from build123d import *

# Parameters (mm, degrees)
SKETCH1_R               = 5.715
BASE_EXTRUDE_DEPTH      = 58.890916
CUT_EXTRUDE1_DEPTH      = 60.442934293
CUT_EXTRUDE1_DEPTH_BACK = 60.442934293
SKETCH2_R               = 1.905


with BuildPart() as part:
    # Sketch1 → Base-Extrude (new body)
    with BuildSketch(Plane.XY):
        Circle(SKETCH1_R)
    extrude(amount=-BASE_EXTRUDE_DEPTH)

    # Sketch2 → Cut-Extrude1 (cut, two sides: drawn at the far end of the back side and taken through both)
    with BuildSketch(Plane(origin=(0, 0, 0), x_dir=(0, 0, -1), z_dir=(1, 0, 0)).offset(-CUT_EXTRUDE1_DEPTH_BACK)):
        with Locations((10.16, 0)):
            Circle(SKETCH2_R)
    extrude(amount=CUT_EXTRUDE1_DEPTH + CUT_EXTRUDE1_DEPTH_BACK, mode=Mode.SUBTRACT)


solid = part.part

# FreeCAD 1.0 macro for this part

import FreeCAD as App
import Part
import Sketcher
Q = App.Units.Quantity

doc = App.newDocument("Part")
body = doc.addObject("PartDesign::Body", "Body")

sketch1 = doc.addObject("Sketcher::SketchObject", "Sketch")
body.addObject(sketch1)
sketch1.AttachmentSupport = (doc.XY_Plane, [""])
sketch1.MapMode = "FlatFace"
sketch1.addGeometry(Part.Circle(App.Vector(0, 0, 0), App.Vector(0, 0, 1), 6), False)
sketch1.addConstraint([
    Sketcher.Constraint("Coincident", 0, 3, -1, 1),
    Sketcher.Constraint("Diameter", 0, Q("0.45 in")),
])
pad1 = doc.addObject("PartDesign::Pad", "Pad")
body.addObject(pad1)
pad1.Profile = sketch1
pad1.Length = 58.890916
pad1.Reversed = True

sketch2 = doc.addObject("Sketcher::SketchObject", "Sketch001")
body.addObject(sketch2)
sketch2.AttachmentSupport = (doc.YZ_Plane, [""])
sketch2.MapMode = "FlatFace"
sketch2.addGeometry(Part.Circle(App.Vector(0, -10.2, 0), App.Vector(0, 0, 1), 1.9), False)
sketch2.addConstraint([
    Sketcher.Constraint("PointOnObject", 0, 3, -2),
    Sketcher.Constraint("Diameter", 0, Q("0.15 in")),
    Sketcher.Constraint("DistanceY", 0, 3, -1, 1, Q("0.4 in")),
])
pocket1 = doc.addObject("PartDesign::Pocket", "Pocket")
body.addObject(pocket1)
pocket1.Profile = sketch2
pocket1.Type = "ThroughAll"
pocket1.Midplane = True

doc.recompute()
